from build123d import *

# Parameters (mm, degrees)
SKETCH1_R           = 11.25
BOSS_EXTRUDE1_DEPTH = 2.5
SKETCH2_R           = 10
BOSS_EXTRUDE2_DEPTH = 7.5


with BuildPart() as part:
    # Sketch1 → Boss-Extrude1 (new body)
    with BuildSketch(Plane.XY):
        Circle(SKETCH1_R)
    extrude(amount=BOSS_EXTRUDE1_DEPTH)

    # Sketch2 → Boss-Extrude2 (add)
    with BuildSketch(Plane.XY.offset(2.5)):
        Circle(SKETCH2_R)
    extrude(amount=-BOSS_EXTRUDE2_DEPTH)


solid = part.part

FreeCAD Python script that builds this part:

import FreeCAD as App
import Part
import Sketcher
from FreeCAD import Vector
Q = App.Units.Quantity

doc = App.newDocument("Part")
body = doc.addObject("PartDesign::Body", "Body")

# Sketch on XY plane
sketch1 = body.newObject("Sketcher::SketchObject", "Sketch")
sketch1.AttachmentSupport = (doc.getObject("XY_Plane"), [""])
sketch1.MapMode = "FlatFace"
sketch1.addGeometry(Part.Circle(Vector(0, 0, 0), Vector(0, 0, 1), 11), False)
sketch1.addConstraint([
    Sketcher.Constraint("Coincident", 0, 3, -1, 1),
    Sketcher.Constraint("Diameter", 0, Q("22.5 mm")),
])
pad1 = body.newObject("PartDesign::Pad", "Pad")
pad1.Profile = sketch1
pad1.Length = 2.5

# Sketch on XY plane
sketch2 = body.newObject("Sketcher::SketchObject", "Sketch001")
sketch2.AttachmentSupport = (doc.getObject("XY_Plane"), [""])
sketch2.MapMode = "FlatFace"
sketch2.AttachmentOffset = App.Placement(Vector(0, 0, 2.5), App.Rotation())
sketch2.addGeometry(Part.Circle(Vector(0, 0, 0), Vector(0, 0, 1), 10), False)
sketch2.addConstraint([
    Sketcher.Constraint("Coincident", 0, 3, -1, 1),
    Sketcher.Constraint("Diameter", 0, Q("20 mm")),
])
pad2 = body.newObject("PartDesign::Pad", "Pad001")
pad2.Profile = sketch2
pad2.Length = 7.5
pad2.Reversed = True

doc.recompute()
